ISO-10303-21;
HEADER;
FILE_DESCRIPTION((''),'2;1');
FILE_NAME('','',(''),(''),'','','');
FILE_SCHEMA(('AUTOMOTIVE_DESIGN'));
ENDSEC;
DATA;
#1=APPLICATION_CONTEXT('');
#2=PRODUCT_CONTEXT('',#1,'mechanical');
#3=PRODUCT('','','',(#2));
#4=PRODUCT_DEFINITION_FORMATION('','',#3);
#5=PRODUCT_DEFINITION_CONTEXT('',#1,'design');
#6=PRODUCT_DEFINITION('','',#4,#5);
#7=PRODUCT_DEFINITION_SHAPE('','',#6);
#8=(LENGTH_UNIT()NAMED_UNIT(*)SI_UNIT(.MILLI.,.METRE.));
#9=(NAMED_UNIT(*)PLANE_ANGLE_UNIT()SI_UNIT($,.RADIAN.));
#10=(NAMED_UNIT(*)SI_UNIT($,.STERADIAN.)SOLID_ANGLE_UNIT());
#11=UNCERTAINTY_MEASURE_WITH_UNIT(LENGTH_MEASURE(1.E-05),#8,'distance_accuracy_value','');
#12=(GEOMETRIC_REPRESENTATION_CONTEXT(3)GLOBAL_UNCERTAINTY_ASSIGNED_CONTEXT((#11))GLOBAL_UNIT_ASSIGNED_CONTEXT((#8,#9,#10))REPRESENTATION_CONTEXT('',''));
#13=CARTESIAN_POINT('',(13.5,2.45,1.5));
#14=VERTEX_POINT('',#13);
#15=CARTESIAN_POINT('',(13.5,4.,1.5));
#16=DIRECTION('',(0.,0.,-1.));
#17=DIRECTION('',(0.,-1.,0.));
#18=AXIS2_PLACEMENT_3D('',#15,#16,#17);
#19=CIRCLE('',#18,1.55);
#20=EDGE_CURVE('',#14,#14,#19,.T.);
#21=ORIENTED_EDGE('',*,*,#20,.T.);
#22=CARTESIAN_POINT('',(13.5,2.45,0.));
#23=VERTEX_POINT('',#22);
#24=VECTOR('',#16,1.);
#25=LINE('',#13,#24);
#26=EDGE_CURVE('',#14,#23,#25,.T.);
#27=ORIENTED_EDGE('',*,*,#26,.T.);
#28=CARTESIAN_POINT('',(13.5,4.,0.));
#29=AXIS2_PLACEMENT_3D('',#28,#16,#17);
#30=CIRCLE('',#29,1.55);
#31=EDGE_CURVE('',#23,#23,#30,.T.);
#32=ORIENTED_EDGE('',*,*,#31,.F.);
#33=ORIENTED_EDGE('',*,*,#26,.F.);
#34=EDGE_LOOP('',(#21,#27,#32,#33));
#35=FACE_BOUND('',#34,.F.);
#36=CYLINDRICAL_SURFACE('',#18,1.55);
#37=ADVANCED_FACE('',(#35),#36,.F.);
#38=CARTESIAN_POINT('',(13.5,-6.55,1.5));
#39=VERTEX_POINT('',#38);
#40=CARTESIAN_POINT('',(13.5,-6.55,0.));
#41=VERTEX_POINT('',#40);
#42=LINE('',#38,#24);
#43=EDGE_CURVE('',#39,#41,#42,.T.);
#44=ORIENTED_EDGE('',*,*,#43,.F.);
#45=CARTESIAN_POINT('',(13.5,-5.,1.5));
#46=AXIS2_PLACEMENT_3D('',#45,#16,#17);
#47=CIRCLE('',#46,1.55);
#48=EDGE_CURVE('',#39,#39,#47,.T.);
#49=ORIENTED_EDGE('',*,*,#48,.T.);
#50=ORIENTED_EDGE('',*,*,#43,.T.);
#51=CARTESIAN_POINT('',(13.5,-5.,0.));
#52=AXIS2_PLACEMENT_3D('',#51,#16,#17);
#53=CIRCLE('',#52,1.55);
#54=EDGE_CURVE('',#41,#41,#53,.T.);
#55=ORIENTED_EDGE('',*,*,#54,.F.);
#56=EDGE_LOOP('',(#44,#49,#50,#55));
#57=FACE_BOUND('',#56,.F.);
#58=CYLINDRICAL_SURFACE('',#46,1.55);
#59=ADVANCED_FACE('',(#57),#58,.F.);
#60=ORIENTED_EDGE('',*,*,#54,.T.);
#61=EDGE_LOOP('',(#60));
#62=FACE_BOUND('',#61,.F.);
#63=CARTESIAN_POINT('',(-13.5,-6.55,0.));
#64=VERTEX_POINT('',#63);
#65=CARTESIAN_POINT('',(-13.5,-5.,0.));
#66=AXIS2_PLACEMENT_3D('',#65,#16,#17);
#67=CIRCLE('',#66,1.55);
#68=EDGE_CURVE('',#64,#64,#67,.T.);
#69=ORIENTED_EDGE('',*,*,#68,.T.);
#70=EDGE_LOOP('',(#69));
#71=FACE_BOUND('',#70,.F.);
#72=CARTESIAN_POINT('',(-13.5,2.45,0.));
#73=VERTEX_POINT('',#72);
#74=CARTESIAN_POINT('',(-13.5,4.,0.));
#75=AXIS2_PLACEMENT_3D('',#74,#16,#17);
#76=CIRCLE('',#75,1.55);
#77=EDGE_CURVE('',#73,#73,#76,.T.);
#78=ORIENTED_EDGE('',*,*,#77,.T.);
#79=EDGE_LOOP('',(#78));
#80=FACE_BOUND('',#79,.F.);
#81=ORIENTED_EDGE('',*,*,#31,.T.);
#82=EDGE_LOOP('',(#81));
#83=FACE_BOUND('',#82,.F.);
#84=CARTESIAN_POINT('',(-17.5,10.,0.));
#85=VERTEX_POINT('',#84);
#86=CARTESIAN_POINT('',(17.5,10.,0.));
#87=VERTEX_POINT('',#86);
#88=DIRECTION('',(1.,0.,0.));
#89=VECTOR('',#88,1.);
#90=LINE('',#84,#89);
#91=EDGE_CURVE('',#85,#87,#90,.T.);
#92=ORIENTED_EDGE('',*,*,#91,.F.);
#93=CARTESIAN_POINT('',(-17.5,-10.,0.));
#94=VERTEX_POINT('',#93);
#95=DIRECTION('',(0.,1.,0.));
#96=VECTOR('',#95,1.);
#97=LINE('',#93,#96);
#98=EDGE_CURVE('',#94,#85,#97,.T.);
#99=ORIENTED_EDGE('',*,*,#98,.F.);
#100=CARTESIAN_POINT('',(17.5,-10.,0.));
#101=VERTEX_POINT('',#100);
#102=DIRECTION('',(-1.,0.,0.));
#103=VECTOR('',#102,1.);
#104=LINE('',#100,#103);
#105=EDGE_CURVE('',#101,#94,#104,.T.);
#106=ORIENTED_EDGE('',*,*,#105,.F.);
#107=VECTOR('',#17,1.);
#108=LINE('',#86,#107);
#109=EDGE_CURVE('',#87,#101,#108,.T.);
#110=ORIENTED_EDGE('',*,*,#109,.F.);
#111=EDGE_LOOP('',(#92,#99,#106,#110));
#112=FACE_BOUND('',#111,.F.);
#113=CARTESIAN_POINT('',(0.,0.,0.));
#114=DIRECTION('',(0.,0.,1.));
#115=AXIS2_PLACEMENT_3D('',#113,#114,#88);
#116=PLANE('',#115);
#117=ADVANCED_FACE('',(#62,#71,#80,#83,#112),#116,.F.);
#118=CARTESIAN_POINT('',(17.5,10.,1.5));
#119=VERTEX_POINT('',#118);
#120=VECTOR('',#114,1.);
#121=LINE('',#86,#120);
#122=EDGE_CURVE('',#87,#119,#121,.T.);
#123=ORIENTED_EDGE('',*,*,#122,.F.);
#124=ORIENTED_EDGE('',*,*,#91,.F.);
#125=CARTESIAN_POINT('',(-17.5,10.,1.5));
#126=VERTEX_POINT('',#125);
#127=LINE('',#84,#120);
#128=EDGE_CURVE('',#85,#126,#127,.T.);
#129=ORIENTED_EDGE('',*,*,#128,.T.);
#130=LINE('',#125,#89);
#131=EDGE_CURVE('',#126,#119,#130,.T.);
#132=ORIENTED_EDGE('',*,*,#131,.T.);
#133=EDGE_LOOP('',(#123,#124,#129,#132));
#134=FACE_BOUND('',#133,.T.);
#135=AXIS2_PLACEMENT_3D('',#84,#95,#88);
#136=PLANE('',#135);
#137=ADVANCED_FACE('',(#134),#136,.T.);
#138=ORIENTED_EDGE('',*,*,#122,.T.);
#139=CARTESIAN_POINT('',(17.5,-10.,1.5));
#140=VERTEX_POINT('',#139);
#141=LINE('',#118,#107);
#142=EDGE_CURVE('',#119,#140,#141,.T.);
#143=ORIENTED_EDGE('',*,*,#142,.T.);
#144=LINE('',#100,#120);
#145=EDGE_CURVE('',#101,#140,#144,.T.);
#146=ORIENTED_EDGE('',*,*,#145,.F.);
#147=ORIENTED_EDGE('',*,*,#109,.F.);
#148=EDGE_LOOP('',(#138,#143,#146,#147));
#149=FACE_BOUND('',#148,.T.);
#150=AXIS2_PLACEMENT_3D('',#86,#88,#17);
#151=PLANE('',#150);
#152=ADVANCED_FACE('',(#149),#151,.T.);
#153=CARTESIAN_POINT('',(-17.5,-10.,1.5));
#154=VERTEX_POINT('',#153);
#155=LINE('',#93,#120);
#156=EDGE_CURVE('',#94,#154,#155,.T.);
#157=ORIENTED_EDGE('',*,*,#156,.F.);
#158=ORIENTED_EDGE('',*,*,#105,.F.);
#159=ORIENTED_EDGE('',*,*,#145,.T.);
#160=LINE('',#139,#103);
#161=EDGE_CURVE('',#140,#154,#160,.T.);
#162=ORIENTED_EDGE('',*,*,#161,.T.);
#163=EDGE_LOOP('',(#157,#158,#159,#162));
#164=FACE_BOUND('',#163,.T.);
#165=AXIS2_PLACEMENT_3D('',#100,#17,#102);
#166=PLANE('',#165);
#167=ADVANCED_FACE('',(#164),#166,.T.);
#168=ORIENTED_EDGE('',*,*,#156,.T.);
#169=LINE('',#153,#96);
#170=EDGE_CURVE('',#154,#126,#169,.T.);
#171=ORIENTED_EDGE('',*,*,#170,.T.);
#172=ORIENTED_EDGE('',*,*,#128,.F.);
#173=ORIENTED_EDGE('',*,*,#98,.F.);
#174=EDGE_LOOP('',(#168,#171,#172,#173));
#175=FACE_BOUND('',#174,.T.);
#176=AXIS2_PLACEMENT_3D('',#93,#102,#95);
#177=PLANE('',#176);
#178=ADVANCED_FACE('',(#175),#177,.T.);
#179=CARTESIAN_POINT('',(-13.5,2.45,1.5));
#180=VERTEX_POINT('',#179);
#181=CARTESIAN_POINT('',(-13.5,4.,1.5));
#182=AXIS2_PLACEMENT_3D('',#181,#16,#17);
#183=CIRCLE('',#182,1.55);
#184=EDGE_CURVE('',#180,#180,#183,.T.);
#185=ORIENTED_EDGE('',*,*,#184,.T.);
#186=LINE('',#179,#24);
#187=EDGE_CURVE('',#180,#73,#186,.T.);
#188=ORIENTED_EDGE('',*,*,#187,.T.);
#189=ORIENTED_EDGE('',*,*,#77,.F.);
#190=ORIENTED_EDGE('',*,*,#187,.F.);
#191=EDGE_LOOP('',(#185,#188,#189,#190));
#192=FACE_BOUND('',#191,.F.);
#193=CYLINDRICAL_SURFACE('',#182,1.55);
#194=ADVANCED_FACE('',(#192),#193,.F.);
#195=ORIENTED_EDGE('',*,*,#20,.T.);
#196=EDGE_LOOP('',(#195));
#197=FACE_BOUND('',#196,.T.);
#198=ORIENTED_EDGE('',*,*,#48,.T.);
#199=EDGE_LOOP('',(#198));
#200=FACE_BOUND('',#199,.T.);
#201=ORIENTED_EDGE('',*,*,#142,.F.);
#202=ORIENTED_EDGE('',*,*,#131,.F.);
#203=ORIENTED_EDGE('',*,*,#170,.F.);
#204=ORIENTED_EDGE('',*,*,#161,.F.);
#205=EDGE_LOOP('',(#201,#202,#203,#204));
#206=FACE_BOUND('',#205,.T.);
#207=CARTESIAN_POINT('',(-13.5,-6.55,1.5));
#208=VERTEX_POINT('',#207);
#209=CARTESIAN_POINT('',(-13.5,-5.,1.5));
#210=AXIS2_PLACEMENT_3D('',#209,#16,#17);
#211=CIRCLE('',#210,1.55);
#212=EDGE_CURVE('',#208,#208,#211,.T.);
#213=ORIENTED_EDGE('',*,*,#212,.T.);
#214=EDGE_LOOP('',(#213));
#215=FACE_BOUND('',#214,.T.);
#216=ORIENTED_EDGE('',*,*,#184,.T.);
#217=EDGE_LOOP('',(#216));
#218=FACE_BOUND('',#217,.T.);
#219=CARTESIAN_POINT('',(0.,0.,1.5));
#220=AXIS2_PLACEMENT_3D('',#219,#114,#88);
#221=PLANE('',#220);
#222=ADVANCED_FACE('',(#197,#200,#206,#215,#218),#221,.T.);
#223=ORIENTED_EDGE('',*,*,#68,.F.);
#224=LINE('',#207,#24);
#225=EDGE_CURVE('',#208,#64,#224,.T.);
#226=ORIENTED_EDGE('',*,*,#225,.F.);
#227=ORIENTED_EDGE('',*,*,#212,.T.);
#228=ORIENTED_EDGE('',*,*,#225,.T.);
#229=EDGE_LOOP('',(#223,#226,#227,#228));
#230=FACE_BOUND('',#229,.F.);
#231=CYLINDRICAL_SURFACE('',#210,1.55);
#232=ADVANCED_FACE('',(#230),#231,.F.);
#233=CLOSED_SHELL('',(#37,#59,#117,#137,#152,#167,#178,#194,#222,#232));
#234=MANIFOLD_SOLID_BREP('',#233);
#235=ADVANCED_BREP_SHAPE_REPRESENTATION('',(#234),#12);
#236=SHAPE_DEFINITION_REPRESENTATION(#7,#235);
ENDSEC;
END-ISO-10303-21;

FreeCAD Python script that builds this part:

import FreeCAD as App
import Part
import Sketcher

doc = App.newDocument("Part")
params = doc.addObject("Spreadsheet::Sheet", "Params")
for row, (alias, value) in enumerate([
    ("sketch1_width", "35 mm"),
    ("sketch1_height", "20 mm"),
    ("pad1_length", "1.5 mm"),
    ("sketch2_diameter", "3.1 mm"),
    ("hole_diameter", "3.1 mm"),
], start=1):
    params.set(f"A{row}", alias)
    params.set(f"B{row}", "=" + value)
    params.setAlias(f"B{row}", alias)

body = doc.addObject("PartDesign::Body", "Body")

sketch1 = body.newObject("Sketcher::SketchObject", "Sketch")
sketch1.AttachmentSupport = (doc.getObject("XY_Plane"), [""])
sketch1.MapMode = "FlatFace"
sketch1.addGeometry([
    Part.LineSegment(App.Vector(18, 10, 0), App.Vector(-18, 10, 0)),
    Part.LineSegment(App.Vector(-18, 10, 0), App.Vector(-18, -10, 0)),
    Part.LineSegment(App.Vector(-18, -10, 0), App.Vector(18, -10, 0)),
    Part.LineSegment(App.Vector(18, -10, 0), App.Vector(18, 10, 0)),
], False)
sketch1.addConstraint([
    Sketcher.Constraint("Coincident", 0, 2, 1, 1),
    Sketcher.Constraint("Coincident", 1, 2, 2, 1),
    Sketcher.Constraint("Coincident", 2, 2, 3, 1),
    Sketcher.Constraint("Coincident", 3, 2, 0, 1),
    Sketcher.Constraint("Horizontal", 0),
    Sketcher.Constraint("Vertical", 1),
    Sketcher.Constraint("Horizontal", 2),
    Sketcher.Constraint("Vertical", 3),
    Sketcher.Constraint("Symmetric", 0, 2, 2, 2, -1, 1),
    Sketcher.Constraint("DistanceX", 0, 2, 0, 1, 35.0),
    Sketcher.Constraint("DistanceY", 1, 2, 1, 1, 20.0),
])
sketch1.setExpression("Constraints[9]", "Params.sketch1_width")
sketch1.setExpression("Constraints[10]", "Params.sketch1_height")
pad1 = body.newObject("PartDesign::Pad", "Pad")
pad1.Profile = sketch1
pad1.setExpression("Length", "Params.pad1_length")

sketch2 = body.newObject("Sketcher::SketchObject", "Sketch001")
sketch2.AttachmentSupport = (doc.getObject("XY_Plane"), [""])
sketch2.MapMode = "FlatFace"
sketch2.AttachmentOffset = App.Placement(App.Vector(0, 0, 1.5), App.Rotation())
sketch2.addGeometry([
    Part.Circle(App.Vector(-13.5, -5, 0), App.Vector(0, 0, 1), 1.6),
    Part.Circle(App.Vector(13.5, -5, 0), App.Vector(0, 0, 1), 1.6),
    Part.Circle(App.Vector(-13.5, 4, 0), App.Vector(0, 0, 1), 1.6),
    Part.Circle(App.Vector(13.5, 4, 0), App.Vector(0, 0, 1), 1.6),
], False)
sketch2.addConstraint([
    Sketcher.Constraint("Equal", 0, 1),
    Sketcher.Constraint("Equal", 1, 2),
    Sketcher.Constraint("Equal", 2, 3),
    Sketcher.Constraint("Symmetric", 0, 3, 1, 3, -2),
    Sketcher.Constraint("Symmetric", 2, 3, 3, 3, -2),
    Sketcher.Constraint("Vertical", 0, 3, 2, 3),
    Sketcher.Constraint("Diameter", 0, 3.1),
    Sketcher.Constraint("DistanceY", 0, 3, -1, 1, 5.0),
    Sketcher.Constraint("DistanceY", -1, 1, 2, 3, 4.0),
    Sketcher.Constraint("DistanceX", 0, 3, 1, 3, 27.0),
])
sketch2.setExpression("Constraints[6]", "Params.sketch2_diameter")
doc.recompute()
hole = body.newObject("PartDesign::Hole", "Hole")
hole.Profile = sketch2
hole.ThreadType = "None"
hole.setExpression("Diameter", "Params.hole_diameter")
hole.DepthType = "ThroughAll"

doc.recompute()
